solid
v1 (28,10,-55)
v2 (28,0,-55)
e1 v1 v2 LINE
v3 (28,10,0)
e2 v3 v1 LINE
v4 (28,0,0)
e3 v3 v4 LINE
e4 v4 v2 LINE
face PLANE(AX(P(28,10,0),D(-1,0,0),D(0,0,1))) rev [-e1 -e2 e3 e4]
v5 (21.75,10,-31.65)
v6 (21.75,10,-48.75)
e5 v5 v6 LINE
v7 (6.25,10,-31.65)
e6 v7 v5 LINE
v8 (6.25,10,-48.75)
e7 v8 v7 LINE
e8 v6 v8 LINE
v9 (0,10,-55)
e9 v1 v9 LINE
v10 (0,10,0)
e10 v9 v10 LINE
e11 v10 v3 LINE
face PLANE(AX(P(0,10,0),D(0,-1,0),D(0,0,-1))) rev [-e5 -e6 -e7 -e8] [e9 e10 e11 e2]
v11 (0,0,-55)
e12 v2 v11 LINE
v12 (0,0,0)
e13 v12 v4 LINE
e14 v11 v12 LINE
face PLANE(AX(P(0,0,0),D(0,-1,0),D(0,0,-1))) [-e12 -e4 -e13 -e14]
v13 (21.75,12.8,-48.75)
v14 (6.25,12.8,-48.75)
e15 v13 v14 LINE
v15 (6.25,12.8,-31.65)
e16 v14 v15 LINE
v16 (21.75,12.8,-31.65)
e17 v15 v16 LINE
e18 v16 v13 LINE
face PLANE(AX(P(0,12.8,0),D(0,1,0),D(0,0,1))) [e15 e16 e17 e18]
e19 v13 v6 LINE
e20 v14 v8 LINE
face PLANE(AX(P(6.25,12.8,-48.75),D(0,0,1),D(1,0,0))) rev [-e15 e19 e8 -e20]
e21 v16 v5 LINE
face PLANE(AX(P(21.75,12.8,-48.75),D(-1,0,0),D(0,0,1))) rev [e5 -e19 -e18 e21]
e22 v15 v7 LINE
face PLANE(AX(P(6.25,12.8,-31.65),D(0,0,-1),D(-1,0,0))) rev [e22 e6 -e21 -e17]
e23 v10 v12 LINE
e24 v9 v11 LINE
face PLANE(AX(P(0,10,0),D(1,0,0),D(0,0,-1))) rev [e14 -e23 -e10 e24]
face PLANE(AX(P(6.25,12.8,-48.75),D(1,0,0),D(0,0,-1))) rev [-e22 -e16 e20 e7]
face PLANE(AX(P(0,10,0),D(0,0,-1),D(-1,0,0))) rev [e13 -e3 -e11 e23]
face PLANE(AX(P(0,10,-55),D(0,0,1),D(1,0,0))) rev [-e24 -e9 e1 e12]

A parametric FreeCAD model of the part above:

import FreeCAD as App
import Part
import Sketcher
from FreeCAD import Vector
Q = App.Units.Quantity

doc = App.newDocument("Part")
params = doc.addObject("Spreadsheet::Sheet", "Params")
for row, (alias, value) in enumerate([
    ("sketch1_width", "28 mm"),
    ("sketch1_height", "55 mm"),
    ("pad1_length", "10 mm"),
    ("sketch2_width", "15.5 mm"),
    ("sketch2_height", "17.1 mm"),
    ("pad2_length", "2.8 mm"),
], start=1):
    params.set(f"A{row}", alias)
    params.set(f"B{row}", "=" + value)
    params.setAlias(f"B{row}", alias)

body = doc.addObject("PartDesign::Body", "Body")

# Sketch on XZ plane
sketch1 = body.newObject("Sketcher::SketchObject", "Sketch")
sketch1.AttachmentSupport = (doc.getObject("XZ_Plane"), [""])
sketch1.MapMode = "FlatFace"
sketch1.addGeometry([
    Part.LineSegment(Vector(0, -55, 0), Vector(0, 0, 0)),
    Part.LineSegment(Vector(0, 0, 0), Vector(28, 0, 0)),
    Part.LineSegment(Vector(28, 0, 0), Vector(28, -55, 0)),
    Part.LineSegment(Vector(28, -55, 0), Vector(0, -55, 0)),
], False)
sketch1.addConstraint([
    Sketcher.Constraint("Coincident", 0, 2, 1, 1),
    Sketcher.Constraint("Coincident", 1, 2, 2, 1),
    Sketcher.Constraint("Coincident", 2, 2, 3, 1),
    Sketcher.Constraint("Coincident", 3, 2, 0, 1),
    Sketcher.Constraint("Vertical", 0),
    Sketcher.Constraint("Horizontal", 1),
    Sketcher.Constraint("Vertical", 2),
    Sketcher.Constraint("Horizontal", 3),
    Sketcher.Constraint("Coincident", 0, 2, -1, 1),
    Sketcher.Constraint("DistanceX", 1, 1, 1, 2, Q("28 mm")),
    Sketcher.Constraint("DistanceY", 0, 1, 0, 2, Q("55 mm")),
])
sketch1.setExpression("Constraints[9]", "Params.sketch1_width")
sketch1.setExpression("Constraints[10]", "Params.sketch1_height")
pad1 = body.newObject("PartDesign::Pad", "Pad")
pad1.Profile = sketch1
pad1.setExpression("Length", "Params.pad1_length")
pad1.Reversed = True

# Sketch on XZ plane
sketch2 = body.newObject("Sketcher::SketchObject", "Sketch001")
sketch2.AttachmentSupport = (doc.getObject("XZ_Plane"), [""])
sketch2.MapMode = "FlatFace"
sketch2.AttachmentOffset = App.Placement(Vector(0, 0, -10), App.Rotation())
sketch2.addGeometry([
    Part.LineSegment(Vector(6, -49, 0), Vector(6, -32, 0)),
    Part.LineSegment(Vector(6, -32, 0), Vector(22, -32, 0)),
    Part.LineSegment(Vector(22, -32, 0), Vector(22, -49, 0)),
    Part.LineSegment(Vector(22, -49, 0), Vector(6, -49, 0)),
], False)
sketch2.addConstraint([
    Sketcher.Constraint("Coincident", 0, 2, 1, 1),
    Sketcher.Constraint("Coincident", 1, 2, 2, 1),
    Sketcher.Constraint("Coincident", 2, 2, 3, 1),
    Sketcher.Constraint("Coincident", 3, 2, 0, 1),
    Sketcher.Constraint("Vertical", 0),
    Sketcher.Constraint("Horizontal", 1),
    Sketcher.Constraint("Vertical", 2),
    Sketcher.Constraint("Horizontal", 3),
    Sketcher.Constraint("DistanceX", 1, 1, 1, 2, Q("15.5 mm")),
    Sketcher.Constraint("DistanceY", 0, 1, 0, 2, Q("17.1 mm")),
    Sketcher.Constraint("DistanceX", -1, 1, 0, 2, Q("6.25 mm")),
    Sketcher.Constraint("DistanceY", 0, 2, -1, 1, Q("31.65 mm")),
])
sketch2.setExpression("Constraints[8]", "Params.sketch2_width")
sketch2.setExpression("Constraints[9]", "Params.sketch2_height")
pad2 = body.newObject("PartDesign::Pad", "Pad001")
pad2.Profile = sketch2
pad2.setExpression("Length", "Params.pad2_length")
pad2.Reversed = True

doc.recompute()
